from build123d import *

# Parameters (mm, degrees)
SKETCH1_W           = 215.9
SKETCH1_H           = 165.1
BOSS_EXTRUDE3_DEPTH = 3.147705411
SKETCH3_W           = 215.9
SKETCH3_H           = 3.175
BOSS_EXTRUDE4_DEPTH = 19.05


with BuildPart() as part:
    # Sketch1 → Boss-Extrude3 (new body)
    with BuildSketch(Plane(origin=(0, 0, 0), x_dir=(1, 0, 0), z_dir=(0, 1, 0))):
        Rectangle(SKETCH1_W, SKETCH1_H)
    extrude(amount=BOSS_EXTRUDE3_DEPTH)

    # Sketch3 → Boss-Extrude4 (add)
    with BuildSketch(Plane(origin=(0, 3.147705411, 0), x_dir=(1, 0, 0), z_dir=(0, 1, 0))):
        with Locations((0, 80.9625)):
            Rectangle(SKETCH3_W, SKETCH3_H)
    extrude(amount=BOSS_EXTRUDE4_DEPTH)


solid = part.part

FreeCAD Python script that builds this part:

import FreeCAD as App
import Part
import Sketcher
Q = App.Units.Quantity

doc = App.newDocument("Part")
body = doc.addObject("PartDesign::Body", "Body")

sketch1 = doc.addObject("Sketcher::SketchObject", "Sketch")
body.addObject(sketch1)
sketch1.AttachmentSupport = (doc.XZ_Plane, [""])
sketch1.MapMode = "FlatFace"
sketch1.addGeometry(Part.LineSegment(App.Vector(-107.95, -82.55, 0), App.Vector(-107.95, 82.55, 0)), False)
sketch1.addGeometry(Part.LineSegment(App.Vector(-107.95, 82.55, 0), App.Vector(107.95, 82.55, 0)), False)
sketch1.addGeometry(Part.LineSegment(App.Vector(107.95, 82.55, 0), App.Vector(107.95, -82.55, 0)), False)
sketch1.addGeometry(Part.LineSegment(App.Vector(107.95, -82.55, 0), App.Vector(-107.95, -82.55, 0)), False)
sketch1.addConstraint(Sketcher.Constraint("Coincident", 0, 2, 1, 1))
sketch1.addConstraint(Sketcher.Constraint("Coincident", 1, 2, 2, 1))
sketch1.addConstraint(Sketcher.Constraint("Coincident", 2, 2, 3, 1))
sketch1.addConstraint(Sketcher.Constraint("Coincident", 3, 2, 0, 1))
sketch1.addConstraint(Sketcher.Constraint("Vertical", 0))
sketch1.addConstraint(Sketcher.Constraint("Horizontal", 1))
sketch1.addConstraint(Sketcher.Constraint("Vertical", 2))
sketch1.addConstraint(Sketcher.Constraint("Horizontal", 3))
sketch1.addConstraint(Sketcher.Constraint("Symmetric", 0, 2, 2, 2, -1, 1))
sketch1.addConstraint(Sketcher.Constraint("DistanceX", 1, 1, 1, 2, Q("8.5 in")))
sketch1.addConstraint(Sketcher.Constraint("DistanceY", 0, 1, 0, 2, Q("6.5 in")))
pad1 = doc.addObject("PartDesign::Pad", "Pad")
body.addObject(pad1)
pad1.Profile = sketch1
pad1.Length = 3.147705
pad1.Reversed = True

sketch2 = doc.addObject("Sketcher::SketchObject", "Sketch001")
body.addObject(sketch2)
sketch2.AttachmentSupport = (doc.XZ_Plane, [""])
sketch2.MapMode = "FlatFace"
sketch2.AttachmentOffset = App.Placement(App.Vector(0, 0, -3.147705), App.Rotation())
sketch2.addGeometry(Part.LineSegment(App.Vector(-107.95, -82.55, 0), App.Vector(-107.95, -79.375, 0)), False)
sketch2.addGeometry(Part.LineSegment(App.Vector(-107.95, -79.375, 0), App.Vector(107.95, -79.375, 0)), False)
sketch2.addGeometry(Part.LineSegment(App.Vector(107.95, -79.375, 0), App.Vector(107.95, -82.55, 0)), False)
sketch2.addGeometry(Part.LineSegment(App.Vector(107.95, -82.55, 0), App.Vector(-107.95, -82.55, 0)), False)
sketch2.addConstraint(Sketcher.Constraint("Coincident", 0, 2, 1, 1))
sketch2.addConstraint(Sketcher.Constraint("Coincident", 1, 2, 2, 1))
sketch2.addConstraint(Sketcher.Constraint("Coincident", 2, 2, 3, 1))
sketch2.addConstraint(Sketcher.Constraint("Coincident", 3, 2, 0, 1))
sketch2.addConstraint(Sketcher.Constraint("Vertical", 0))
sketch2.addConstraint(Sketcher.Constraint("Horizontal", 1))
sketch2.addConstraint(Sketcher.Constraint("Vertical", 2))
sketch2.addConstraint(Sketcher.Constraint("Horizontal", 3))
sketch2.addConstraint(Sketcher.Constraint("DistanceX", 1, 1, 1, 2, Q("8.5 in")))
sketch2.addConstraint(Sketcher.Constraint("DistanceY", 0, 1, 0, 2, Q("0.125 in")))
sketch2.addConstraint(Sketcher.Constraint("DistanceX", 0, 2, -1, 1, Q("4.25 in")))
sketch2.addConstraint(Sketcher.Constraint("DistanceY", 2, 2, -1, 1, Q("3.25 in")))
pad2 = doc.addObject("PartDesign::Pad", "Pad001")
body.addObject(pad2)
pad2.Profile = sketch2
pad2.Length = Q("0.75 in")
pad2.Reversed = True

doc.recompute()
